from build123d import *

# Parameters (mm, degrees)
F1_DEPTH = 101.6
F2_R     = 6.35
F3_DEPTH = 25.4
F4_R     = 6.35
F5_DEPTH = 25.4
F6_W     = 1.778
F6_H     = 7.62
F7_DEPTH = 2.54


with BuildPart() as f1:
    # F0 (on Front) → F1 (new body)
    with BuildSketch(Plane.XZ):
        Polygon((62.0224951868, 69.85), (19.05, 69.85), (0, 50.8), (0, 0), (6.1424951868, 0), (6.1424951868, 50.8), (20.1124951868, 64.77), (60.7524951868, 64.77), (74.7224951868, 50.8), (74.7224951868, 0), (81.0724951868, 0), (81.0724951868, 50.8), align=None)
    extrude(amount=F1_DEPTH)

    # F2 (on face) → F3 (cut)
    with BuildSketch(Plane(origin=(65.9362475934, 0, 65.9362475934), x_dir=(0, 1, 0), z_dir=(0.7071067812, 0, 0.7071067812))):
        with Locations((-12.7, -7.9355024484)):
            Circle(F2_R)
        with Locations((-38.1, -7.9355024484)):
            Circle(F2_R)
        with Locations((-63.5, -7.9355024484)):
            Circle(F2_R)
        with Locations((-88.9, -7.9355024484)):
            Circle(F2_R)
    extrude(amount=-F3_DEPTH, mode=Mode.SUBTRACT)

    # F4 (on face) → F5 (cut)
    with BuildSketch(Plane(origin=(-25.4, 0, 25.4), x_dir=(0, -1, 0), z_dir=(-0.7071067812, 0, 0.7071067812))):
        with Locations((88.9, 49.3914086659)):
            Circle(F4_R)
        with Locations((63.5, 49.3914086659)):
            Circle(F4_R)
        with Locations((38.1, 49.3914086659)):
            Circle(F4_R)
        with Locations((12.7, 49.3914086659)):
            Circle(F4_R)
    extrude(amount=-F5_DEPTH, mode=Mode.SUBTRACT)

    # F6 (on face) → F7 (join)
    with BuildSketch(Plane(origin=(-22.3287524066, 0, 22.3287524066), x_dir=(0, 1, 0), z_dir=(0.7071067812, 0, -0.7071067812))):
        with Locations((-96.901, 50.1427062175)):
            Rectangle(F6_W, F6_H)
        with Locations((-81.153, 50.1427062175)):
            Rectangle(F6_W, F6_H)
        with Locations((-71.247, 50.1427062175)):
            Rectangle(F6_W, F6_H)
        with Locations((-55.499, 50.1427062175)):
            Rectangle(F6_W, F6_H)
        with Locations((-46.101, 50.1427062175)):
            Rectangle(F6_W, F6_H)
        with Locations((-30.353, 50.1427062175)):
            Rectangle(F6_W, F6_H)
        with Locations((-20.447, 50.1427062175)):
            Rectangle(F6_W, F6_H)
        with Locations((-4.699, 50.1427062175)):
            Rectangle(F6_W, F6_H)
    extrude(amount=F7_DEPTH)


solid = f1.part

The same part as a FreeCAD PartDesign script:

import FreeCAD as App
import Part
import Sketcher

V = App.Vector
Q = App.Units.Quantity

doc = App.newDocument("Part")
body = doc.addObject("PartDesign::Body", "Body")

sketch1 = body.newObject("Sketcher::SketchObject", "Sketch")
sketch1.AttachmentSupport = (doc.getObject("XZ_Plane"), [""])
sketch1.MapMode = "FlatFace"
sketch1.addGeometry([
    Part.LineSegment(V(62.022495, 69.85, 0), V(19.05, 69.85, 0)),
    Part.LineSegment(V(19.05, 69.85, 0), V(0, 50.8, 0)),
    Part.LineSegment(V(0, 50.8, 0), V(0, 0, 0)),
    Part.LineSegment(V(0, 0, 0), V(6.142495, 0, 0)),
    Part.LineSegment(V(6.142495, 0, 0), V(6.142495, 50.8, 0)),
    Part.LineSegment(V(6.142495, 50.8, 0), V(20.112495, 64.77, 0)),
    Part.LineSegment(V(20.112495, 64.77, 0), V(60.752495, 64.77, 0)),
    Part.LineSegment(V(60.752495, 64.77, 0), V(74.722495, 50.8, 0)),
    Part.LineSegment(V(74.722495, 50.8, 0), V(74.722495, 0, 0)),
    Part.LineSegment(V(74.722495, 0, 0), V(81.072495, 0, 0)),
    Part.LineSegment(V(81.072495, 0, 0), V(81.072495, 50.8, 0)),
    Part.LineSegment(V(81.072495, 50.8, 0), V(62.022495, 69.85, 0)),
], False)
sketch1.addConstraint([
    Sketcher.Constraint("Coincident", 0, 2, 1, 1),
    Sketcher.Constraint("Coincident", 1, 2, 2, 1),
    Sketcher.Constraint("Coincident", 2, 2, 3, 1),
    Sketcher.Constraint("Coincident", 3, 2, 4, 1),
    Sketcher.Constraint("Coincident", 4, 2, 5, 1),
    Sketcher.Constraint("Coincident", 5, 2, 6, 1),
    Sketcher.Constraint("Coincident", 6, 2, 7, 1),
    Sketcher.Constraint("Coincident", 7, 2, 8, 1),
    Sketcher.Constraint("Coincident", 8, 2, 9, 1),
    Sketcher.Constraint("Coincident", 9, 2, 10, 1),
    Sketcher.Constraint("Coincident", 10, 2, 11, 1),
    Sketcher.Constraint("Coincident", 11, 2, 0, 1),
    Sketcher.Constraint("Horizontal", 0),
    Sketcher.Constraint("Vertical", 2),
    Sketcher.Constraint("Horizontal", 3),
    Sketcher.Constraint("Vertical", 4),
    Sketcher.Constraint("Horizontal", 6),
    Sketcher.Constraint("Vertical", 8),
    Sketcher.Constraint("Horizontal", 9),
    Sketcher.Constraint("Vertical", 10),
    Sketcher.Constraint("Coincident", 2, 2, -1, 1),
    Sketcher.Constraint("PointOnObject", 8, 2, -1),
    Sketcher.Constraint("Parallel", 1, 5),
    Sketcher.Constraint("Perpendicular", 5, 7),
    Sketcher.Constraint("Parallel", 7, 11),
    Sketcher.Constraint("Horizontal", 1, 2, 4, 2),
    Sketcher.Constraint("Horizontal", 4, 2, 7, 2),
    Sketcher.Constraint("Horizontal", 7, 2, 10, 2),
    Sketcher.Constraint("Equal", 5, 7),
    Sketcher.Constraint("DistanceY", 2, 2, 2, 1, Q("2 in")),
    Sketcher.Constraint("DistanceX", 6, 1, 6, 2, Q("1.6 in")),
    Sketcher.Constraint("DistanceX", 9, 1, 9, 2, Q("0.25 in")),
    Sketcher.Constraint("DistanceY", 5, 2, 0, 2, Q("0.2 in")),
    Sketcher.Constraint("DistanceX", 4, 2, 7, 2, Q("2.7 in")),
    Sketcher.Constraint("DistanceX", 0, 2, 0, 1, Q("42.972495 mm")),
])
pad1 = body.newObject("PartDesign::Pad", "Pad")
pad1.Profile = sketch1
pad1.Length = Q("4 in")

sketch2 = body.newObject("Sketcher::SketchObject", "Sketch001")
sketch2.Placement = App.Placement(V(65.936248, 0, 65.936248), App.Rotation(V(0, 1, 0), V(-0.707106781, 0, 0.707106781), V(0.707106781, 0, 0.707106781), "ZXY"))
sketch2.addGeometry([
    Part.Circle(V(-12.7, -7.935502, 0), V(0, 0, 1), 6.35),
    Part.Circle(V(-38.1, -7.935502, 0), V(0, 0, 1), 6.35),
    Part.Circle(V(-63.5, -7.935502, 0), V(0, 0, 1), 6.35),
    Part.Circle(V(-88.9, -7.935502, 0), V(0, 0, 1), 6.35),
], False)
sketch2.addConstraint([
    Sketcher.Constraint("Equal", 0, 1),
    Sketcher.Constraint("Equal", 1, 2),
    Sketcher.Constraint("Equal", 2, 3),
    Sketcher.Constraint("Horizontal", 0, 3, 1, 3),
    Sketcher.Constraint("Horizontal", 1, 3, 2, 3),
    Sketcher.Constraint("Horizontal", 2, 3, 3, 3),
    Sketcher.Constraint("Diameter", 0, Q("0.5 in")),
    Sketcher.Constraint("DistanceX", 1, 3, 0, 3, Q("1 in")),
    Sketcher.Constraint("DistanceX", 2, 3, 1, 3, Q("1 in")),
    Sketcher.Constraint("DistanceX", 3, 3, 2, 3, Q("1 in")),
    Sketcher.Constraint("DistanceX", 0, 3, -1, 1, Q("0.5 in")),
    Sketcher.Constraint("DistanceY", 0, 3, -1, 1, Q("7.935502 mm")),
])
pocket1 = body.newObject("PartDesign::Pocket", "Pocket")
pocket1.Profile = sketch2
pocket1.Length = Q("1 in")

sketch3 = body.newObject("Sketcher::SketchObject", "Sketch002")
sketch3.Placement = App.Placement(V(-25.4, 0, 25.4), App.Rotation(V(0, -1, 0), V(0.707106781, 0, 0.707106781), V(-0.707106781, 0, 0.707106781), "ZXY"))
sketch3.addGeometry([
    Part.Circle(V(88.9, 49.391409, 0), V(0, 0, 1), 6.35),
    Part.Circle(V(63.5, 49.391409, 0), V(0, 0, 1), 6.35),
    Part.Circle(V(38.1, 49.391409, 0), V(0, 0, 1), 6.35),
    Part.Circle(V(12.7, 49.391409, 0), V(0, 0, 1), 6.35),
], False)
sketch3.addConstraint([
    Sketcher.Constraint("Equal", 0, 1),
    Sketcher.Constraint("Equal", 1, 2),
    Sketcher.Constraint("Equal", 2, 3),
    Sketcher.Constraint("Horizontal", 0, 3, 1, 3),
    Sketcher.Constraint("Horizontal", 1, 3, 2, 3),
    Sketcher.Constraint("Horizontal", 2, 3, 3, 3),
    Sketcher.Constraint("Diameter", 0, Q("0.5 in")),
    Sketcher.Constraint("DistanceX", 1, 3, 0, 3, Q("1 in")),
    Sketcher.Constraint("DistanceX", 2, 3, 1, 3, Q("1 in")),
    Sketcher.Constraint("DistanceX", 3, 3, 2, 3, Q("1 in")),
    Sketcher.Constraint("DistanceX", -1, 1, 0, 3, Q("3.5 in")),
    Sketcher.Constraint("DistanceY", -1, 1, 0, 3, Q("49.391409 mm")),
])
pocket2 = body.newObject("PartDesign::Pocket", "Pocket001")
pocket2.Profile = sketch3
pocket2.Length = Q("1 in")

sketch4 = body.newObject("Sketcher::SketchObject", "Sketch003")
sketch4.Placement = App.Placement(V(-22.328752, 0, 22.328752), App.Rotation(V(0, 1, 0), V(0.707106781, 0, 0.707106781), V(0.707106781, 0, -0.707106781), "ZXY"))
sketch4.addGeometry([
    Part.LineSegment(V(-97.79, 53.952706, 0), V(-97.79, 46.332706, 0)),
    Part.LineSegment(V(-97.79, 46.332706, 0), V(-96.012, 46.332706, 0)),
    Part.LineSegment(V(-96.012, 46.332706, 0), V(-96.012, 53.952706, 0)),
    Part.LineSegment(V(-96.012, 53.952706, 0), V(-97.79, 53.952706, 0)),
    Part.LineSegment(V(-82.042, 53.952706, 0), V(-82.042, 46.332706, 0)),
    Part.LineSegment(V(-82.042, 46.332706, 0), V(-80.264, 46.332706, 0)),
    Part.LineSegment(V(-80.264, 46.332706, 0), V(-80.264, 53.952706, 0)),
    Part.LineSegment(V(-80.264, 53.952706, 0), V(-82.042, 53.952706, 0)),
    Part.LineSegment(V(-72.136, 53.952706, 0), V(-72.136, 46.332706, 0)),
    Part.LineSegment(V(-72.136, 46.332706, 0), V(-70.358, 46.332706, 0)),
    Part.LineSegment(V(-70.358, 46.332706, 0), V(-70.358, 53.952706, 0)),
    Part.LineSegment(V(-70.358, 53.952706, 0), V(-72.136, 53.952706, 0)),
    Part.LineSegment(V(-56.388, 53.952706, 0), V(-56.388, 46.332706, 0)),
    Part.LineSegment(V(-56.388, 46.332706, 0), V(-54.61, 46.332706, 0)),
    Part.LineSegment(V(-54.61, 46.332706, 0), V(-54.61, 53.952706, 0)),
    Part.LineSegment(V(-54.61, 53.952706, 0), V(-56.388, 53.952706, 0)),
    Part.LineSegment(V(-46.99, 53.952706, 0), V(-46.99, 46.332706, 0)),
    Part.LineSegment(V(-46.99, 46.332706, 0), V(-45.212, 46.332706, 0)),
    Part.LineSegment(V(-45.212, 46.332706, 0), V(-45.212, 53.952706, 0)),
    Part.LineSegment(V(-45.212, 53.952706, 0), V(-46.99, 53.952706, 0)),
    Part.LineSegment(V(-31.242, 53.952706, 0), V(-31.242, 46.332706, 0)),
    Part.LineSegment(V(-31.242, 46.332706, 0), V(-29.464, 46.332706, 0)),
    Part.LineSegment(V(-29.464, 46.332706, 0), V(-29.464, 53.952706, 0)),
    Part.LineSegment(V(-29.464, 53.952706, 0), V(-31.242, 53.952706, 0)),
    Part.LineSegment(V(-21.336, 53.952706, 0), V(-21.336, 46.332706, 0)),
    Part.LineSegment(V(-21.336, 46.332706, 0), V(-19.558, 46.332706, 0)),
    Part.LineSegment(V(-19.558, 46.332706, 0), V(-19.558, 53.952706, 0)),
    Part.LineSegment(V(-19.558, 53.952706, 0), V(-21.336, 53.952706, 0)),
    Part.LineSegment(V(-5.588, 53.952706, 0), V(-5.588, 46.332706, 0)),
    Part.LineSegment(V(-5.588, 46.332706, 0), V(-3.81, 46.332706, 0)),
    Part.LineSegment(V(-3.81, 46.332706, 0), V(-3.81, 53.952706, 0)),
    Part.LineSegment(V(-3.81, 53.952706, 0), V(-5.588, 53.952706, 0)),
], False)
sketch4.addConstraint([
    Sketcher.Constraint("Coincident", 0, 2, 1, 1),
    Sketcher.Constraint("Coincident", 1, 2, 2, 1),
    Sketcher.Constraint("Coincident", 2, 2, 3, 1),
    Sketcher.Constraint("Coincident", 3, 2, 0, 1),
    Sketcher.Constraint("Coincident", 4, 2, 5, 1),
    Sketcher.Constraint("Coincident", 5, 2, 6, 1),
    Sketcher.Constraint("Coincident", 6, 2, 7, 1),
    Sketcher.Constraint("Coincident", 7, 2, 4, 1),
    Sketcher.Constraint("Coincident", 8, 2, 9, 1),
    Sketcher.Constraint("Coincident", 9, 2, 10, 1),
    Sketcher.Constraint("Coincident", 10, 2, 11, 1),
    Sketcher.Constraint("Coincident", 11, 2, 8, 1),
    Sketcher.Constraint("Coincident", 12, 2, 13, 1),
    Sketcher.Constraint("Coincident", 13, 2, 14, 1),
    Sketcher.Constraint("Coincident", 14, 2, 15, 1),
    Sketcher.Constraint("Coincident", 15, 2, 12, 1),
    Sketcher.Constraint("Coincident", 16, 2, 17, 1),
    Sketcher.Constraint("Coincident", 17, 2, 18, 1),
    Sketcher.Constraint("Coincident", 18, 2, 19, 1),
    Sketcher.Constraint("Coincident", 19, 2, 16, 1),
    Sketcher.Constraint("Coincident", 20, 2, 21, 1),
    Sketcher.Constraint("Coincident", 21, 2, 22, 1),
    Sketcher.Constraint("Coincident", 22, 2, 23, 1),
    Sketcher.Constraint("Coincident", 23, 2, 20, 1),
    Sketcher.Constraint("Coincident", 24, 2, 25, 1),
    Sketcher.Constraint("Coincident", 25, 2, 26, 1),
    Sketcher.Constraint("Coincident", 26, 2, 27, 1),
    Sketcher.Constraint("Coincident", 27, 2, 24, 1),
    Sketcher.Constraint("Coincident", 28, 2, 29, 1),
    Sketcher.Constraint("Coincident", 29, 2, 30, 1),
    Sketcher.Constraint("Coincident", 30, 2, 31, 1),
    Sketcher.Constraint("Coincident", 31, 2, 28, 1),
    Sketcher.Constraint("Vertical", 0),
    Sketcher.Constraint("Horizontal", 1),
    Sketcher.Constraint("Vertical", 2),
    Sketcher.Constraint("Horizontal", 3),
    Sketcher.Constraint("Vertical", 4),
    Sketcher.Constraint("Horizontal", 5),
    Sketcher.Constraint("Vertical", 6),
    Sketcher.Constraint("Horizontal", 7),
    Sketcher.Constraint("Vertical", 8),
    Sketcher.Constraint("Horizontal", 9),
    Sketcher.Constraint("Vertical", 10),
    Sketcher.Constraint("Horizontal", 11),
    Sketcher.Constraint("Vertical", 12),
    Sketcher.Constraint("Horizontal", 13),
    Sketcher.Constraint("Vertical", 14),
    Sketcher.Constraint("Horizontal", 15),
    Sketcher.Constraint("Vertical", 16),
    Sketcher.Constraint("Horizontal", 17),
    Sketcher.Constraint("Vertical", 18),
    Sketcher.Constraint("Horizontal", 19),
    Sketcher.Constraint("Vertical", 20),
    Sketcher.Constraint("Horizontal", 21),
    Sketcher.Constraint("Vertical", 22),
    Sketcher.Constraint("Horizontal", 23),
    Sketcher.Constraint("Vertical", 24),
    Sketcher.Constraint("Horizontal", 25),
    Sketcher.Constraint("Vertical", 26),
    Sketcher.Constraint("Horizontal", 27),
    Sketcher.Constraint("Vertical", 28),
    Sketcher.Constraint("Horizontal", 29),
    Sketcher.Constraint("Vertical", 30),
    Sketcher.Constraint("Horizontal", 31),
    Sketcher.Constraint("Horizontal", 1, 2, 4, 2),
    Sketcher.Constraint("Horizontal", 3, 2, 6, 2),
    Sketcher.Constraint("Horizontal", 5, 2, 8, 2),
    Sketcher.Constraint("Horizontal", 7, 2, 10, 2),
    Sketcher.Constraint("Horizontal", 9, 2, 12, 2),
    Sketcher.Constraint("Horizontal", 11, 2, 14, 2),
    Sketcher.Constraint("Horizontal", 13, 2, 16, 2),
    Sketcher.Constraint("Horizontal", 15, 2, 18, 2),
    Sketcher.Constraint("Horizontal", 17, 2, 20, 2),
    Sketcher.Constraint("Horizontal", 19, 2, 22, 2),
    Sketcher.Constraint("Horizontal", 21, 2, 24, 2),
    Sketcher.Constraint("Horizontal", 23, 2, 26, 2),
    Sketcher.Constraint("Horizontal", 25, 2, 28, 2),
    Sketcher.Constraint("Horizontal", 27, 2, 30, 2),
    Sketcher.Constraint("Equal", 3, 5),
    Sketcher.Constraint("Equal", 7, 9),
    Sketcher.Constraint("Equal", 11, 13),
    Sketcher.Constraint("Equal", 15, 17),
    Sketcher.Constraint("Equal", 19, 21),
    Sketcher.Constraint("Equal", 23, 25),
    Sketcher.Constraint("Equal", 27, 29),
    Sketcher.Constraint("DistanceY", 0, 2, 0, 1, Q("0.3 in")),
    Sketcher.Constraint("DistanceX", 1, 1, 1, 2, Q("0.07 in")),
    Sketcher.Constraint("DistanceX", 13, 2, 16, 2, Q("0.3 in")),
    Sketcher.Constraint("DistanceX", 0, 2, -1, 1, Q("3.85 in")),
    Sketcher.Constraint("DistanceX", 4, 2, -1, 1, Q("3.23 in")),
    Sketcher.Constraint("DistanceX", 8, 2, -1, 1, Q("2.84 in")),
    Sketcher.Constraint("DistanceX", 12, 2, -1, 1, Q("2.22 in")),
    Sketcher.Constraint("DistanceX", 20, 2, -1, 1, Q("1.23 in")),
    Sketcher.Constraint("DistanceX", 24, 2, -1, 1, Q("0.84 in")),
    Sketcher.Constraint("DistanceX", 28, 2, -1, 1, Q("0.22 in")),
    Sketcher.Constraint("DistanceY", -1, 1, 0, 2, Q("46.332706 mm")),
])
pad2 = body.newObject("PartDesign::Pad", "Pad001")
pad2.Profile = sketch4
pad2.Length = Q("0.1 in")

doc.recompute()
